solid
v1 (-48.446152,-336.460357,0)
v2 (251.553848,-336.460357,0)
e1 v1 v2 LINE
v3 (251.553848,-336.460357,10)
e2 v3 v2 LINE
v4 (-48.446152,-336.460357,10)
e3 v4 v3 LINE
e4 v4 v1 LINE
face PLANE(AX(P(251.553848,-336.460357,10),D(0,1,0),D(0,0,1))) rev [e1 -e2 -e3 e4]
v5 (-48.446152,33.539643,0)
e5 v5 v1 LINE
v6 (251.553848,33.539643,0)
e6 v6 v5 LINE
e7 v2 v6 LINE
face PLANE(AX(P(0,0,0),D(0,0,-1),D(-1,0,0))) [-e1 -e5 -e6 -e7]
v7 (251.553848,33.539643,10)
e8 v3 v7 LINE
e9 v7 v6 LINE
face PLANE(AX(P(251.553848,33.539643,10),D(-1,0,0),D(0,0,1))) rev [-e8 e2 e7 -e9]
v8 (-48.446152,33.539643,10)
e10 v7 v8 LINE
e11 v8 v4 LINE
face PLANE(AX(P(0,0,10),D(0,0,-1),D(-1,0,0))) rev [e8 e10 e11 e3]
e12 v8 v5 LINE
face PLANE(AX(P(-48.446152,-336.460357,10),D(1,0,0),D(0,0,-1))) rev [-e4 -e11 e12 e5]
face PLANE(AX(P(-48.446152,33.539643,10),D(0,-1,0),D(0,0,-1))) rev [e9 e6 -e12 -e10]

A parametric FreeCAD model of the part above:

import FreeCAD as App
import Part
import Sketcher
from FreeCAD import Vector


def add_polygon(sketch, points):
    """Adds a closed chain of lines whose ends are joined by coincident constraints."""
    first, n = sketch.GeometryCount, len(points)
    for a, b in zip(points, points[1:] + points[:1]):
        sketch.addGeometry(Part.LineSegment(App.Vector(*a, 0), App.Vector(*b, 0)), False)
    for i in range(n):
        sketch.addConstraint(Sketcher.Constraint("Coincident", first + i, 2, first + (i + 1) % n, 1))

doc = App.newDocument("Part")
body = doc.addObject("PartDesign::Body", "Body")

sketch1 = body.newObject("Sketcher::SketchObject", "Sketch")
sketch1.AttachmentSupport = (doc.getObject("XY_Plane"), [""])
sketch1.MapMode = "FlatFace"
add_polygon(sketch1, [(-48, 34), (-48, -336), (252, -336), (252, 34)])
sketch1.addConstraint([
    Sketcher.Constraint("Vertical", 0),
    Sketcher.Constraint("Horizontal", 1),
    Sketcher.Constraint("Vertical", 2),
    Sketcher.Constraint("Horizontal", 3),
    Sketcher.Constraint("DistanceX", 1, 1, 1, 2, 300.0),
    Sketcher.Constraint("DistanceY", 0, 2, 0, 1, 370.0),
    Sketcher.Constraint("DistanceX", 0, 2, -1, 1, 48.446152),
    Sketcher.Constraint("DistanceY", 0, 2, -1, 1, 336.460357),
])
pad1 = body.newObject("PartDesign::Pad", "Pad")
pad1.Profile = sketch1
pad1.Length = 10

doc.recompute()
